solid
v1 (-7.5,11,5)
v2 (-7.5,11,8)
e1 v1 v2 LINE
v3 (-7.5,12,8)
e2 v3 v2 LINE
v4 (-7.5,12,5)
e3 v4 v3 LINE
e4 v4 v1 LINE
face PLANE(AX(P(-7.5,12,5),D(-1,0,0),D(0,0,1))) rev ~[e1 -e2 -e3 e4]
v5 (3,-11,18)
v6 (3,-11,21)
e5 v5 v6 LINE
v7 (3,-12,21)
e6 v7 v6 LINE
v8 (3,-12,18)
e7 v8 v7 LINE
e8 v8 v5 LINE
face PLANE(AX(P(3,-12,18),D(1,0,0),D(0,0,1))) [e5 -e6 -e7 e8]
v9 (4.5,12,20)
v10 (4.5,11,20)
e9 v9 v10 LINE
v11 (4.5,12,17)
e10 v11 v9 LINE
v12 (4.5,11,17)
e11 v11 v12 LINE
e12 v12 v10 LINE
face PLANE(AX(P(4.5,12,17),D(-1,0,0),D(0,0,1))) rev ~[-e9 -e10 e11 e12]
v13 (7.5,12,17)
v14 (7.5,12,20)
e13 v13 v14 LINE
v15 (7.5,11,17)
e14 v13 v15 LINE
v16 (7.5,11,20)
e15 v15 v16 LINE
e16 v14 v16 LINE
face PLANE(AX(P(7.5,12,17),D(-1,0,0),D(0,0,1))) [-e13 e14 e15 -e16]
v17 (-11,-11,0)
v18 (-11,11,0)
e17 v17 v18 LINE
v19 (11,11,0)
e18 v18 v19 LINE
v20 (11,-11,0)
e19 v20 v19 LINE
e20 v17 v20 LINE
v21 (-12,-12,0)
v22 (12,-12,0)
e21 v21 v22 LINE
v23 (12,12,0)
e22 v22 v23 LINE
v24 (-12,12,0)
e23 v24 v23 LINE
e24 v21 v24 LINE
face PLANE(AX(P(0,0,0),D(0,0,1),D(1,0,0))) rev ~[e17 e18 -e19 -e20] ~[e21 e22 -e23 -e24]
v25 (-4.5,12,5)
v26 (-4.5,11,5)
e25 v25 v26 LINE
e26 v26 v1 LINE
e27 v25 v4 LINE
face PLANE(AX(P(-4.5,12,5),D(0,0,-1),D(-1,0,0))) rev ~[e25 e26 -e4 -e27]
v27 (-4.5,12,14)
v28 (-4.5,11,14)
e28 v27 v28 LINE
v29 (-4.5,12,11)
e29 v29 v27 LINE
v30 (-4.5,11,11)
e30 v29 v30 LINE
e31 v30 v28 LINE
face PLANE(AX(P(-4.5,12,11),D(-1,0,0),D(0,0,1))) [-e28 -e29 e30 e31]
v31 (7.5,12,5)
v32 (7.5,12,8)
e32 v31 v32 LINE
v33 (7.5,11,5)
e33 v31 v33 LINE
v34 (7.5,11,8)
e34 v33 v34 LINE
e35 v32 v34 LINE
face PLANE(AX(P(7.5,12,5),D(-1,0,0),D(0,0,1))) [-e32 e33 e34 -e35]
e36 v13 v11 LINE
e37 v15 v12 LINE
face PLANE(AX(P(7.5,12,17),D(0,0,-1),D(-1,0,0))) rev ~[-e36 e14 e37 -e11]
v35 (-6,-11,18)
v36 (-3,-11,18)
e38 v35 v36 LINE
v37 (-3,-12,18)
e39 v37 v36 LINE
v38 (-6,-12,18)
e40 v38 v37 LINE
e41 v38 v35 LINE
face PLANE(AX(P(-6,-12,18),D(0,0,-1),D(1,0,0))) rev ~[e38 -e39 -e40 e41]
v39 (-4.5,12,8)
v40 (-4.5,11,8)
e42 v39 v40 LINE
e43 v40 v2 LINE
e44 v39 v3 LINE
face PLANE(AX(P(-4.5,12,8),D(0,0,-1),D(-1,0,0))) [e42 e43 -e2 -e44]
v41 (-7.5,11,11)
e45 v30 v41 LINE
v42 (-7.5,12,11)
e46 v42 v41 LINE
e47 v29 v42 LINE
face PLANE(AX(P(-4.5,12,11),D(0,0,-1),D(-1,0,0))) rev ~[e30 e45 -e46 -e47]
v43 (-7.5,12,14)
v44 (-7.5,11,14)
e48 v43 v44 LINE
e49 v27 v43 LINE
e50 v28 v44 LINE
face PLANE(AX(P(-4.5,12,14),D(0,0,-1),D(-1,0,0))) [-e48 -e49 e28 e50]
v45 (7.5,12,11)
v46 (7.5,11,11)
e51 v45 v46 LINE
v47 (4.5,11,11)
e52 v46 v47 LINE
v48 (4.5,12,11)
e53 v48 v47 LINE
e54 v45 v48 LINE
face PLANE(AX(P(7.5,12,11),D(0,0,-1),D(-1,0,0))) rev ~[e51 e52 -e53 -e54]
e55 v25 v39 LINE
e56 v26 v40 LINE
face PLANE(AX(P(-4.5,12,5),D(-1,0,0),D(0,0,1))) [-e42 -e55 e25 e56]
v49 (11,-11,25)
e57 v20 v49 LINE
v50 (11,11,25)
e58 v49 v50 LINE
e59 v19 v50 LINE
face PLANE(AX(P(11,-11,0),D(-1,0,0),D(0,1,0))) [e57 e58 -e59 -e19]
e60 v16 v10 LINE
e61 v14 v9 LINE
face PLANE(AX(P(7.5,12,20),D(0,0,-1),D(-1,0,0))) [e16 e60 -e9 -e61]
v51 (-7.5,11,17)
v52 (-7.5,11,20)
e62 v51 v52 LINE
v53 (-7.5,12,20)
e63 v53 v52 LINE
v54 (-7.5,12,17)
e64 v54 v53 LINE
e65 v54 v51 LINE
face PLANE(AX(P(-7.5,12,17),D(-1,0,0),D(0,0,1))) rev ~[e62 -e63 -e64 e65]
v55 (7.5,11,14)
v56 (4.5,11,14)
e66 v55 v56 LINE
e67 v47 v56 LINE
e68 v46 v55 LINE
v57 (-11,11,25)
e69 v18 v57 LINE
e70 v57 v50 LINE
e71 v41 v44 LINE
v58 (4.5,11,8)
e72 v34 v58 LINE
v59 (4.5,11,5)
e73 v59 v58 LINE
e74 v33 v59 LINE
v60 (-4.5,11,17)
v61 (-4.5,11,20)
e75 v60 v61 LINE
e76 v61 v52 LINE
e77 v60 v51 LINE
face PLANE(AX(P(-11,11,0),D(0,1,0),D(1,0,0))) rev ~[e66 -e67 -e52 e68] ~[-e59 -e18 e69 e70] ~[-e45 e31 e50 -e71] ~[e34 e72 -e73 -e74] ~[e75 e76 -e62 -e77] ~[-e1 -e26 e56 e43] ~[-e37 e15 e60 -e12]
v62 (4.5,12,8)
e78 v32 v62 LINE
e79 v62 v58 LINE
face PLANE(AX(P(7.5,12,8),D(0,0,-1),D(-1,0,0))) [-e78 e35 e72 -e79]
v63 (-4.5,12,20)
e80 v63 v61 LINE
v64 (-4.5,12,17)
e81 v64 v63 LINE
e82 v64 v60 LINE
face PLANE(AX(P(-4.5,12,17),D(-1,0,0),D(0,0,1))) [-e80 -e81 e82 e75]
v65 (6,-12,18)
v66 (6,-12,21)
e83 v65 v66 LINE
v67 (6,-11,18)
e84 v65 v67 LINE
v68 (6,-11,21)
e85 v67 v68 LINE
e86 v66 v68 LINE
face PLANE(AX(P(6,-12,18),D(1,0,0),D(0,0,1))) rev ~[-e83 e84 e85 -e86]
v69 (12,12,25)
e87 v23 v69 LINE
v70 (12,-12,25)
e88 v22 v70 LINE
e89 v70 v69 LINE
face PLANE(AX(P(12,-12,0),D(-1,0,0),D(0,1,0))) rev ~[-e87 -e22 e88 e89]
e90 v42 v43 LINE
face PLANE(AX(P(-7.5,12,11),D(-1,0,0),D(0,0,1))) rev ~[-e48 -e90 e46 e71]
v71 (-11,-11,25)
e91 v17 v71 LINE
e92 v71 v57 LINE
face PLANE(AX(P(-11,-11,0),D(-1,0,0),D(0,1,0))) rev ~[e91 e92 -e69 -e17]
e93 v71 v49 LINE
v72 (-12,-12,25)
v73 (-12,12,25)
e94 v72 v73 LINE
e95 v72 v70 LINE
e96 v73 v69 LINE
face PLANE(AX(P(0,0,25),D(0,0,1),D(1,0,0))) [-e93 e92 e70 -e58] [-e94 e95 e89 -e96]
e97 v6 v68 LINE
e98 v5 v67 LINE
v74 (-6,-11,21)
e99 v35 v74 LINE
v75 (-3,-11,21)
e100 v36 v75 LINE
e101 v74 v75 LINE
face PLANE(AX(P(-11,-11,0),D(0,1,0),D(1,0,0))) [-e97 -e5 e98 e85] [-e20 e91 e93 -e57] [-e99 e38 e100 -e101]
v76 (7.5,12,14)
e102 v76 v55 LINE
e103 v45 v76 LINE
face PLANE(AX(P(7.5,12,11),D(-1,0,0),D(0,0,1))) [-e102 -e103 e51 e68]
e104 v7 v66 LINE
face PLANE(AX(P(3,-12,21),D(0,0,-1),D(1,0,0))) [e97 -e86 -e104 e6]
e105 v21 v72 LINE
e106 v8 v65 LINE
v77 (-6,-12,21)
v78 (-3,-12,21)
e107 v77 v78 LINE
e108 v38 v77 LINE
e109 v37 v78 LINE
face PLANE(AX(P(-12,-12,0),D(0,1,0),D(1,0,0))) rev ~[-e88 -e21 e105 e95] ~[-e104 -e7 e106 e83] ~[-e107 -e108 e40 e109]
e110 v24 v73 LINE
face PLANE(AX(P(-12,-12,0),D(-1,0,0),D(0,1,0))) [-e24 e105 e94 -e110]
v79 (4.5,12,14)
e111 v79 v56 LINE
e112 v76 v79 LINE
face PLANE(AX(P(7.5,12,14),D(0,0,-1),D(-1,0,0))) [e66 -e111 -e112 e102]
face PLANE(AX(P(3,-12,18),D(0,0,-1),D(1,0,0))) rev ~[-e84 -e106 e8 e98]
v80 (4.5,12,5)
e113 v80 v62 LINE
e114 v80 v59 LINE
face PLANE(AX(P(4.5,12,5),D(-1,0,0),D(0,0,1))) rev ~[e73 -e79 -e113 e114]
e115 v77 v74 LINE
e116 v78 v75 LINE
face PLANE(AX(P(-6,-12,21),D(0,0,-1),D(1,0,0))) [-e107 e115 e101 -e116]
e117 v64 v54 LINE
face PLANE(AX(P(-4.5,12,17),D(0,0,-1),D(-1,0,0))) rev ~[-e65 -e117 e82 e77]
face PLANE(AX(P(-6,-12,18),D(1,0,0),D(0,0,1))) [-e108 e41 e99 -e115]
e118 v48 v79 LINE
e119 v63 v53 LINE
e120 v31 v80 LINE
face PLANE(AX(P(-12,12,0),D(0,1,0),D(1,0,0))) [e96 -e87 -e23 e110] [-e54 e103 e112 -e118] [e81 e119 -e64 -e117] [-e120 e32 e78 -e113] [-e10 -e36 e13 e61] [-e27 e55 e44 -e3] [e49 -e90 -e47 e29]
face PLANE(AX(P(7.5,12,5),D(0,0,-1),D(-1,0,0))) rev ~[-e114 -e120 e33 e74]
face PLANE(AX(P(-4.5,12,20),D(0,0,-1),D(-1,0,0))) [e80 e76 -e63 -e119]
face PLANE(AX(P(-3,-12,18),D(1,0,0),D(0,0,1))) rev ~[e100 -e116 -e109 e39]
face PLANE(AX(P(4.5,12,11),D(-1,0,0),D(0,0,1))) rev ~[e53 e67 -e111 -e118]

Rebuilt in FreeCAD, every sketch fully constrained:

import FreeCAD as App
import Part
import Sketcher
from FreeCAD import Vector
Q = App.Units.Quantity

doc = App.newDocument("Part")
body = doc.addObject("PartDesign::Body", "Body")

# Sketch on XY plane
sketch1 = body.newObject("Sketcher::SketchObject", "Sketch")
sketch1.AttachmentSupport = (doc.getObject("XY_Plane"), [""])
sketch1.MapMode = "FlatFace"
sketch1.addGeometry(Part.LineSegment(Vector(-12, 12, 0), Vector(-12, -12, 0)), False)
sketch1.addGeometry(Part.LineSegment(Vector(-12, -12, 0), Vector(12, -12, 0)), False)
sketch1.addGeometry(Part.LineSegment(Vector(12, -12, 0), Vector(12, 12, 0)), False)
sketch1.addGeometry(Part.LineSegment(Vector(12, 12, 0), Vector(-12, 12, 0)), False)
sketch1.addGeometry(Part.LineSegment(Vector(11, -11, 0), Vector(-11, -11, 0)), False)
sketch1.addGeometry(Part.LineSegment(Vector(-11, -11, 0), Vector(-11, 11, 0)), False)
sketch1.addGeometry(Part.LineSegment(Vector(-11, 11, 0), Vector(11, 11, 0)), False)
sketch1.addGeometry(Part.LineSegment(Vector(11, 11, 0), Vector(11, -11, 0)), False)
sketch1.addConstraint(Sketcher.Constraint("Coincident", 0, 2, 1, 1))
sketch1.addConstraint(Sketcher.Constraint("Coincident", 1, 2, 2, 1))
sketch1.addConstraint(Sketcher.Constraint("Coincident", 2, 2, 3, 1))
sketch1.addConstraint(Sketcher.Constraint("Coincident", 3, 2, 0, 1))
sketch1.addConstraint(Sketcher.Constraint("Coincident", 4, 2, 5, 1))
sketch1.addConstraint(Sketcher.Constraint("Coincident", 5, 2, 6, 1))
sketch1.addConstraint(Sketcher.Constraint("Coincident", 6, 2, 7, 1))
sketch1.addConstraint(Sketcher.Constraint("Coincident", 7, 2, 4, 1))
sketch1.addConstraint(Sketcher.Constraint("Vertical", 0))
sketch1.addConstraint(Sketcher.Constraint("Horizontal", 1))
sketch1.addConstraint(Sketcher.Constraint("Vertical", 2))
sketch1.addConstraint(Sketcher.Constraint("Horizontal", 3))
sketch1.addConstraint(Sketcher.Constraint("Horizontal", 4))
sketch1.addConstraint(Sketcher.Constraint("Vertical", 5))
sketch1.addConstraint(Sketcher.Constraint("Horizontal", 6))
sketch1.addConstraint(Sketcher.Constraint("Vertical", 7))
sketch1.addConstraint(Sketcher.Constraint("Symmetric", 0, 2, 2, 2, -1, 1))
sketch1.addConstraint(Sketcher.Constraint("Symmetric", 4, 2, 6, 2, -1, 1))
sketch1.addConstraint(Sketcher.Constraint("Equal", 3, 0))
sketch1.addConstraint(Sketcher.Constraint("Equal", 6, 5))
sketch1.addConstraint(Sketcher.Constraint("DistanceX", 1, 1, 1, 2, Q("24 mm")))
sketch1.addConstraint(Sketcher.Constraint("DistanceX", 4, 2, 4, 1, Q("22 mm")))
pad1 = body.newObject("PartDesign::Pad", "Pad")
pad1.Profile = sketch1
pad1.Length = 25

# Sketch on XZ plane
sketch2 = body.newObject("Sketcher::SketchObject", "Sketch001")
sketch2.AttachmentSupport = (doc.getObject("XZ_Plane"), [""])
sketch2.MapMode = "FlatFace"
sketch2.AttachmentOffset = App.Placement(Vector(0, 0, 12), App.Rotation())
sketch2.addGeometry(Part.LineSegment(Vector(-6, 21, 0), Vector(-6, 18, 0)), False)
sketch2.addGeometry(Part.LineSegment(Vector(-6, 18, 0), Vector(-3, 18, 0)), False)
sketch2.addGeometry(Part.LineSegment(Vector(-3, 18, 0), Vector(-3, 21, 0)), False)
sketch2.addGeometry(Part.LineSegment(Vector(-3, 21, 0), Vector(-6, 21, 0)), False)
sketch2.addGeometry(Part.LineSegment(Vector(3, 21, 0), Vector(3, 18, 0)), False)
sketch2.addGeometry(Part.LineSegment(Vector(3, 18, 0), Vector(6, 18, 0)), False)
sketch2.addGeometry(Part.LineSegment(Vector(6, 18, 0), Vector(6, 21, 0)), False)
sketch2.addGeometry(Part.LineSegment(Vector(6, 21, 0), Vector(3, 21, 0)), False)
sketch2.addConstraint(Sketcher.Constraint("Coincident", 0, 2, 1, 1))
sketch2.addConstraint(Sketcher.Constraint("Coincident", 1, 2, 2, 1))
sketch2.addConstraint(Sketcher.Constraint("Coincident", 2, 2, 3, 1))
sketch2.addConstraint(Sketcher.Constraint("Coincident", 3, 2, 0, 1))
sketch2.addConstraint(Sketcher.Constraint("Coincident", 4, 2, 5, 1))
sketch2.addConstraint(Sketcher.Constraint("Coincident", 5, 2, 6, 1))
sketch2.addConstraint(Sketcher.Constraint("Coincident", 6, 2, 7, 1))
sketch2.addConstraint(Sketcher.Constraint("Coincident", 7, 2, 4, 1))
sketch2.addConstraint(Sketcher.Constraint("Vertical", 0))
sketch2.addConstraint(Sketcher.Constraint("Horizontal", 1))
sketch2.addConstraint(Sketcher.Constraint("Vertical", 2))
sketch2.addConstraint(Sketcher.Constraint("Horizontal", 3))
sketch2.addConstraint(Sketcher.Constraint("Vertical", 4))
sketch2.addConstraint(Sketcher.Constraint("Horizontal", 5))
sketch2.addConstraint(Sketcher.Constraint("Vertical", 6))
sketch2.addConstraint(Sketcher.Constraint("Horizontal", 7))
sketch2.addConstraint(Sketcher.Constraint("Symmetric", 1, 2, 4, 2, -2))
sketch2.addConstraint(Sketcher.Constraint("Symmetric", 3, 2, 6, 2, -2))
sketch2.addConstraint(Sketcher.Constraint("Equal", 7, 0))
sketch2.addConstraint(Sketcher.Constraint("DistanceX", 1, 1, 1, 2, Q("3 mm")))
sketch2.addConstraint(Sketcher.Constraint("DistanceX", 0, 2, -1, 1, Q("6 mm")))
sketch2.addConstraint(Sketcher.Constraint("DistanceY", -1, 1, 0, 2, Q("18 mm")))
pocket1 = body.newObject("PartDesign::Pocket", "Pocket")
pocket1.Profile = sketch2
pocket1.Length = 1

# Sketch on XZ plane
sketch3 = body.newObject("Sketcher::SketchObject", "Sketch002")
sketch3.AttachmentSupport = (doc.getObject("XZ_Plane"), [""])
sketch3.MapMode = "FlatFace"
sketch3.AttachmentOffset = App.Placement(Vector(0, 0, -12), App.Rotation())
sketch3.addGeometry(Part.LineSegment(Vector(7.5, 8, 0), Vector(7.5, 5, 0)), False)
sketch3.addGeometry(Part.LineSegment(Vector(7.5, 5, 0), Vector(4.5, 5, 0)), False)
sketch3.addGeometry(Part.LineSegment(Vector(4.5, 5, 0), Vector(4.5, 8, 0)), False)
sketch3.addGeometry(Part.LineSegment(Vector(4.5, 8, 0), Vector(7.5, 8, 0)), False)
sketch3.addGeometry(Part.LineSegment(Vector(7.5, 14, 0), Vector(7.5, 11, 0)), False)
sketch3.addGeometry(Part.LineSegment(Vector(7.5, 11, 0), Vector(4.5, 11, 0)), False)
sketch3.addGeometry(Part.LineSegment(Vector(4.5, 11, 0), Vector(4.5, 14, 0)), False)
sketch3.addGeometry(Part.LineSegment(Vector(4.5, 14, 0), Vector(7.5, 14, 0)), False)
sketch3.addGeometry(Part.LineSegment(Vector(7.5, 20, 0), Vector(7.5, 17, 0)), False)
sketch3.addGeometry(Part.LineSegment(Vector(7.5, 17, 0), Vector(4.5, 17, 0)), False)
sketch3.addGeometry(Part.LineSegment(Vector(4.5, 17, 0), Vector(4.5, 20, 0)), False)
sketch3.addGeometry(Part.LineSegment(Vector(4.5, 20, 0), Vector(7.5, 20, 0)), False)
sketch3.addGeometry(Part.LineSegment(Vector(-4.5, 20, 0), Vector(-4.5, 17, 0)), False)
sketch3.addGeometry(Part.LineSegment(Vector(-4.5, 17, 0), Vector(-7.5, 17, 0)), False)
sketch3.addGeometry(Part.LineSegment(Vector(-7.5, 17, 0), Vector(-7.5, 20, 0)), False)
sketch3.addGeometry(Part.LineSegment(Vector(-7.5, 20, 0), Vector(-4.5, 20, 0)), False)
sketch3.addGeometry(Part.LineSegment(Vector(-4.5, 14, 0), Vector(-4.5, 11, 0)), False)
sketch3.addGeometry(Part.LineSegment(Vector(-4.5, 11, 0), Vector(-7.5, 11, 0)), False)
sketch3.addGeometry(Part.LineSegment(Vector(-7.5, 11, 0), Vector(-7.5, 14, 0)), False)
sketch3.addGeometry(Part.LineSegment(Vector(-7.5, 14, 0), Vector(-4.5, 14, 0)), False)
sketch3.addGeometry(Part.LineSegment(Vector(-4.5, 8, 0), Vector(-4.5, 5, 0)), False)
sketch3.addGeometry(Part.LineSegment(Vector(-4.5, 5, 0), Vector(-7.5, 5, 0)), False)
sketch3.addGeometry(Part.LineSegment(Vector(-7.5, 5, 0), Vector(-7.5, 8, 0)), False)
sketch3.addGeometry(Part.LineSegment(Vector(-7.5, 8, 0), Vector(-4.5, 8, 0)), False)
sketch3.addConstraint(Sketcher.Constraint("Coincident", 0, 2, 1, 1))
sketch3.addConstraint(Sketcher.Constraint("Coincident", 1, 2, 2, 1))
sketch3.addConstraint(Sketcher.Constraint("Coincident", 2, 2, 3, 1))
sketch3.addConstraint(Sketcher.Constraint("Coincident", 3, 2, 0, 1))
sketch3.addConstraint(Sketcher.Constraint("Coincident", 4, 2, 5, 1))
sketch3.addConstraint(Sketcher.Constraint("Coincident", 5, 2, 6, 1))
sketch3.addConstraint(Sketcher.Constraint("Coincident", 6, 2, 7, 1))
sketch3.addConstraint(Sketcher.Constraint("Coincident", 7, 2, 4, 1))
sketch3.addConstraint(Sketcher.Constraint("Coincident", 8, 2, 9, 1))
sketch3.addConstraint(Sketcher.Constraint("Coincident", 9, 2, 10, 1))
sketch3.addConstraint(Sketcher.Constraint("Coincident", 10, 2, 11, 1))
sketch3.addConstraint(Sketcher.Constraint("Coincident", 11, 2, 8, 1))
sketch3.addConstraint(Sketcher.Constraint("Coincident", 12, 2, 13, 1))
sketch3.addConstraint(Sketcher.Constraint("Coincident", 13, 2, 14, 1))
sketch3.addConstraint(Sketcher.Constraint("Coincident", 14, 2, 15, 1))
sketch3.addConstraint(Sketcher.Constraint("Coincident", 15, 2, 12, 1))
sketch3.addConstraint(Sketcher.Constraint("Coincident", 16, 2, 17, 1))
sketch3.addConstraint(Sketcher.Constraint("Coincident", 17, 2, 18, 1))
sketch3.addConstraint(Sketcher.Constraint("Coincident", 18, 2, 19, 1))
sketch3.addConstraint(Sketcher.Constraint("Coincident", 19, 2, 16, 1))
sketch3.addConstraint(Sketcher.Constraint("Coincident", 20, 2, 21, 1))
sketch3.addConstraint(Sketcher.Constraint("Coincident", 21, 2, 22, 1))
sketch3.addConstraint(Sketcher.Constraint("Coincident", 22, 2, 23, 1))
sketch3.addConstraint(Sketcher.Constraint("Coincident", 23, 2, 20, 1))
sketch3.addConstraint(Sketcher.Constraint("Vertical", 0))
sketch3.addConstraint(Sketcher.Constraint("Horizontal", 1))
sketch3.addConstraint(Sketcher.Constraint("Vertical", 2))
sketch3.addConstraint(Sketcher.Constraint("Horizontal", 3))
sketch3.addConstraint(Sketcher.Constraint("Vertical", 4))
sketch3.addConstraint(Sketcher.Constraint("Horizontal", 5))
sketch3.addConstraint(Sketcher.Constraint("Vertical", 6))
sketch3.addConstraint(Sketcher.Constraint("Horizontal", 7))
sketch3.addConstraint(Sketcher.Constraint("Vertical", 8))
sketch3.addConstraint(Sketcher.Constraint("Horizontal", 9))
sketch3.addConstraint(Sketcher.Constraint("Vertical", 10))
sketch3.addConstraint(Sketcher.Constraint("Horizontal", 11))
sketch3.addConstraint(Sketcher.Constraint("Vertical", 12))
sketch3.addConstraint(Sketcher.Constraint("Horizontal", 13))
sketch3.addConstraint(Sketcher.Constraint("Vertical", 14))
sketch3.addConstraint(Sketcher.Constraint("Horizontal", 15))
sketch3.addConstraint(Sketcher.Constraint("Vertical", 16))
sketch3.addConstraint(Sketcher.Constraint("Horizontal", 17))
sketch3.addConstraint(Sketcher.Constraint("Vertical", 18))
sketch3.addConstraint(Sketcher.Constraint("Horizontal", 19))
sketch3.addConstraint(Sketcher.Constraint("Vertical", 20))
sketch3.addConstraint(Sketcher.Constraint("Horizontal", 21))
sketch3.addConstraint(Sketcher.Constraint("Vertical", 22))
sketch3.addConstraint(Sketcher.Constraint("Horizontal", 23))
sketch3.addConstraint(Sketcher.Constraint("Symmetric", 9, 2, 12, 2, -2))
sketch3.addConstraint(Sketcher.Constraint("Symmetric", 11, 2, 14, 2, -2))
sketch3.addConstraint(Sketcher.Constraint("Symmetric", 5, 2, 16, 2, -2))
sketch3.addConstraint(Sketcher.Constraint("Symmetric", 7, 2, 18, 2, -2))
sketch3.addConstraint(Sketcher.Constraint("Symmetric", 1, 2, 20, 2, -2))
sketch3.addConstraint(Sketcher.Constraint("Symmetric", 3, 2, 22, 2, -2))
sketch3.addConstraint(Sketcher.Constraint("Vertical", 3, 2, 4, 2))
sketch3.addConstraint(Sketcher.Constraint("Vertical", 2, 2, 5, 2))
sketch3.addConstraint(Sketcher.Constraint("Vertical", 7, 2, 8, 2))
sketch3.addConstraint(Sketcher.Constraint("Vertical", 6, 2, 9, 2))
sketch3.addConstraint(Sketcher.Constraint("Equal", 23, 0))
sketch3.addConstraint(Sketcher.Constraint("Equal", 2, 4))
sketch3.addConstraint(Sketcher.Constraint("Equal", 6, 8))
sketch3.addConstraint(Sketcher.Constraint("DistanceX", 1, 2, 1, 1, Q("3 mm")))
sketch3.addConstraint(Sketcher.Constraint("DistanceY", -1, 1, 0, 2, Q("5 mm")))
sketch3.addConstraint(Sketcher.Constraint("DistanceY", -1, 1, 4, 2, Q("11 mm")))
sketch3.addConstraint(Sketcher.Constraint("DistanceY", -1, 1, 8, 2, Q("17 mm")))
sketch3.addConstraint(Sketcher.Constraint("DistanceX", 12, 2, 9, 2, Q("9 mm")))
pocket2 = body.newObject("PartDesign::Pocket", "Pocket001")
pocket2.Profile = sketch3
pocket2.Length = 1
pocket2.Reversed = True

doc.recompute()
